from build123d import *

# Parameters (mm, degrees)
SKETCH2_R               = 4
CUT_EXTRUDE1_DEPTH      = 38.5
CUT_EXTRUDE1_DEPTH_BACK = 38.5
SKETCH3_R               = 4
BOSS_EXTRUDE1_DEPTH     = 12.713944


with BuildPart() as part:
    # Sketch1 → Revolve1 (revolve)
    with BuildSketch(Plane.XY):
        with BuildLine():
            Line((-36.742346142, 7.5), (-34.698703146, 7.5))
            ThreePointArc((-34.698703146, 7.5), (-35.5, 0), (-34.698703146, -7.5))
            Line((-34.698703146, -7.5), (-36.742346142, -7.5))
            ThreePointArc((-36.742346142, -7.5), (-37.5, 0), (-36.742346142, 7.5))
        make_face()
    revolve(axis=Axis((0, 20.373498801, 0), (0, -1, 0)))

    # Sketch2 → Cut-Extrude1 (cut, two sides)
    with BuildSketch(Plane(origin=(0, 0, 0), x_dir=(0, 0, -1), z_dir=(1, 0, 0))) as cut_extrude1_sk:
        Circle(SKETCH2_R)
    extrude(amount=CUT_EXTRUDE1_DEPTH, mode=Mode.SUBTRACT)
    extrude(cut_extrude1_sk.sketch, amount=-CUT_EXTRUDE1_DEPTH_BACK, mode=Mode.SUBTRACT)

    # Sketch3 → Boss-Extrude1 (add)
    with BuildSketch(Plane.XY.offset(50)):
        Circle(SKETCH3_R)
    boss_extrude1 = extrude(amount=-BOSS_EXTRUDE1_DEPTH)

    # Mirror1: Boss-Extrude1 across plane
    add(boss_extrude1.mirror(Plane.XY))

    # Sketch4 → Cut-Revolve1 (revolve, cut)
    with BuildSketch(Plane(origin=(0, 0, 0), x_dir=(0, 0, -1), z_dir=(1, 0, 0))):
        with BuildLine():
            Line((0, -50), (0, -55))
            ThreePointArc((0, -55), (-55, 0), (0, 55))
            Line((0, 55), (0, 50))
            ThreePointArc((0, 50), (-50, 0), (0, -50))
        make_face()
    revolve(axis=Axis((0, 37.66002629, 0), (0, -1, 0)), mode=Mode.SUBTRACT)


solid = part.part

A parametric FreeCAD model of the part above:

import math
import FreeCAD as App
import Part
import Sketcher
from FreeCAD import Vector

doc = App.newDocument("Part")
body = doc.addObject("PartDesign::Body", "Body")

# Sketch on XY plane
sketch1 = body.newObject("Sketcher::SketchObject", "Sketch")
sketch1.AttachmentSupport = (doc.getObject("XY_Plane"), [""])
sketch1.MapMode = "FlatFace"
sketch1.addGeometry([
    Part.LineSegment(Vector(-34.698703, 7.5, 0), Vector(-36.742346, 7.5, 0)),
    Part.ArcOfCircle(Part.Circle(Vector(0, 0, 0), Vector(0, 0, 1), 37.5), math.radians(168.463041), math.radians(191.536959)),
    Part.LineSegment(Vector(-36.742346, -7.5, 0), Vector(-34.698703, -7.5, 0)),
    Part.ArcOfCircle(Part.Circle(Vector(0, 0, 0), Vector(0, 0, 1), 35.5), math.radians(167.803352), math.radians(192.196648)),
], False)
sketch1.addConstraint([
    Sketcher.Constraint("Coincident", 0, 2, 1, 1),
    Sketcher.Constraint("Coincident", 1, 2, 2, 1),
    Sketcher.Constraint("Coincident", 2, 2, 3, 2),
    Sketcher.Constraint("Coincident", 3, 1, 0, 1),
    Sketcher.Constraint("Horizontal", 0),
    Sketcher.Constraint("Horizontal", 2),
    Sketcher.Constraint("Coincident", 1, 3, -1, 1),
    Sketcher.Constraint("Coincident", 3, 3, -1, 1),
    Sketcher.Constraint("Vertical", 0, 2, 1, 2),
    Sketcher.Constraint("Radius", 1, 37.5),
    Sketcher.Constraint("Radius", 3, 35.5),
    Sketcher.Constraint("DistanceY", 1, 2, 0, 2, 15.0),
])
revolution = body.newObject("PartDesign::Revolution", "Revolution")
revolution.Profile = sketch1
revolution.ReferenceAxis = (sketch1, ["V_Axis"])
revolution.Angle = 360

# Sketch on YZ plane
sketch2 = body.newObject("Sketcher::SketchObject", "Sketch001")
sketch2.AttachmentSupport = (doc.getObject("YZ_Plane"), [""])
sketch2.MapMode = "FlatFace"
sketch2.addGeometry(Part.Circle(Vector(0, 0, 0), Vector(0, 0, 1), 4), False)
sketch2.addConstraint([
    Sketcher.Constraint("Coincident", 0, 3, -1, 1),
    Sketcher.Constraint("Diameter", 0, 8.0),
])
pocket1 = body.newObject("PartDesign::Pocket", "Pocket")
pocket1.Profile = sketch2
pocket1.Type = "ThroughAll"
pocket1.Midplane = True

# Sketch on XY plane
sketch3 = body.newObject("Sketcher::SketchObject", "Sketch002")
sketch3.AttachmentSupport = (doc.getObject("XY_Plane"), [""])
sketch3.MapMode = "FlatFace"
sketch3.AttachmentOffset = App.Placement(Vector(0, 0, 50), App.Rotation())
sketch3.addGeometry(Part.Circle(Vector(0, 0, 0), Vector(0, 0, 1), 4), False)
sketch3.addConstraint([
    Sketcher.Constraint("Coincident", 0, 3, -1, 1),
    Sketcher.Constraint("Diameter", 0, 8.0),
])
pad1 = body.newObject("PartDesign::Pad", "Pad")
pad1.Profile = sketch3
pad1.Length = 12.713944
pad1.Reversed = True
doc.recompute()

mirrored = body.newObject("PartDesign::Mirrored", "Mirrored")
mirrored.Originals = [pad1]
mirrored.MirrorPlane = (doc.getObject("XY_Plane"), [""])
body.Tip = mirrored

# Sketch on YZ plane
sketch4 = body.newObject("Sketcher::SketchObject", "Sketch003")
sketch4.AttachmentSupport = (doc.getObject("YZ_Plane"), [""])
sketch4.MapMode = "FlatFace"
sketch4.addGeometry([
    Part.LineSegment(Vector(-55, 0, 0), Vector(-50, 0, 0)),
    Part.ArcOfCircle(Part.Circle(Vector(0, 0, 0), Vector(0, 0, 1), 50), math.radians(0), math.radians(180)),
    Part.LineSegment(Vector(50, 0, 0), Vector(55, 0, 0)),
    Part.ArcOfCircle(Part.Circle(Vector(0, 0, 0), Vector(0, 0, 1), 55), math.radians(0), math.radians(180)),
], False)
sketch4.addConstraint([
    Sketcher.Constraint("Coincident", 0, 2, 1, 2),
    Sketcher.Constraint("Coincident", 1, 1, 2, 1),
    Sketcher.Constraint("Coincident", 2, 2, 3, 1),
    Sketcher.Constraint("Coincident", 3, 2, 0, 1),
    Sketcher.Constraint("Horizontal", 0),
    Sketcher.Constraint("Horizontal", 2),
    Sketcher.Constraint("Coincident", 1, 3, -1, 1),
    Sketcher.Constraint("Coincident", 3, 3, -1, 1),
    Sketcher.Constraint("PointOnObject", 0, 2, -1),
    Sketcher.Constraint("PointOnObject", 1, 1, -1),
    Sketcher.Constraint("Radius", 1, 50.0),
    Sketcher.Constraint("Radius", 3, 55.0),
])
groove = body.newObject("PartDesign::Groove", "Groove")
groove.Profile = sketch4
groove.ReferenceAxis = (sketch4, ["H_Axis"])
groove.Angle = 360

doc.recompute()
